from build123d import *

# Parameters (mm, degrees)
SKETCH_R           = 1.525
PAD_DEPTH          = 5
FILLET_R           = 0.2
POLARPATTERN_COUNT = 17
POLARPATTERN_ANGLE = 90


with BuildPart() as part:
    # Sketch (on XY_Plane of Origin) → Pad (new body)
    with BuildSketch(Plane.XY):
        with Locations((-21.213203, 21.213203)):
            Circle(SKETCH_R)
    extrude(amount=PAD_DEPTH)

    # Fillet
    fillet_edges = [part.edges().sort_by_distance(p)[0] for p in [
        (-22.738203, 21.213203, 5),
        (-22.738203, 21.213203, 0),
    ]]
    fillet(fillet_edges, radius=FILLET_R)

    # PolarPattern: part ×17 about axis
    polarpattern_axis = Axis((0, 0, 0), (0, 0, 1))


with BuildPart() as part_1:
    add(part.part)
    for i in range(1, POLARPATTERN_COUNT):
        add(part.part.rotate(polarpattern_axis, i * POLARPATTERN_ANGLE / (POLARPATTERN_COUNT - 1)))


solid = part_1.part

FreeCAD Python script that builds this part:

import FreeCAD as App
import Part
import Sketcher
Q = App.Units.Quantity


def edges_at(feature, points):
    """Names of the edges that pass closest to the given points."""
    edges = feature.Shape.Edges
    near = lambda p: min(range(len(edges)), key=lambda i: edges[i].distToShape(Part.Vertex(*p))[0])
    return sorted({f"Edge{near(p) + 1}" for p in points})

doc = App.newDocument("Part")
params = doc.addObject("Spreadsheet::Sheet", "Params")
for row, (alias, value) in enumerate([
    ("sketch1_diameter", "3.05 mm"),
    ("pad1_length", "5 mm"),
    ("fillet_radius", "0.2 mm"),
], start=1):
    params.set(f"A{row}", alias)
    params.set(f"B{row}", "=" + value)
    params.setAlias(f"B{row}", alias)

body = doc.addObject("PartDesign::Body", "Body")

sketch1 = doc.addObject("Sketcher::SketchObject", "Sketch")
body.addObject(sketch1)
sketch1.AttachmentSupport = (doc.XY_Plane, [""])
sketch1.MapMode = "FlatFace"
sketch1.addGeometry(Part.Circle(App.Vector(-21.2, 21.2, 0), App.Vector(0, 0, 1), 1.5), False)
sketch1.addConstraint([
    Sketcher.Constraint("Diameter", 0, Q("3.05 mm")),
    Sketcher.Constraint("DistanceX", 0, 3, -1, 1, Q("21.213203 mm")),
    Sketcher.Constraint("DistanceY", -1, 1, 0, 3, Q("21.213203 mm")),
])
sketch1.setExpression("Constraints[0]", "Params.sketch1_diameter")
pad1 = doc.addObject("PartDesign::Pad", "Pad")
body.addObject(pad1)
pad1.Profile = sketch1
pad1.setExpression("Length", "Params.pad1_length")
doc.recompute()

fillet = doc.addObject("PartDesign::Fillet", "Fillet")
body.addObject(fillet)
fillet.Base = (pad1, edges_at(pad1, [(-22.738, 21.213, 5), (-22.738, 21.213, 0)]))
fillet.setExpression("Radius", "Params.fillet_radius")
body2 = doc.addObject("PartDesign::Body", "Body001")
doc.recompute()

body2.BaseFeature = body
doc.recompute()

body3 = doc.addObject("PartDesign::Body", "Body002")
body3.BaseFeature = body
body3.Placement = App.Placement(App.Vector(0, 0, 0), App.Rotation(App.Vector(0, 0, 1), 5.625))
boolean = doc.addObject("PartDesign::Boolean", "Boolean")
body2.addObject(boolean)
boolean.Type = "Fuse"
boolean.addObjects([body3])
doc.recompute()

body4 = doc.addObject("PartDesign::Body", "Body003")
body4.BaseFeature = body
body4.Placement = App.Placement(App.Vector(0, 0, 0), App.Rotation(App.Vector(0, 0, 1), 11.25))
boolean2 = doc.addObject("PartDesign::Boolean", "Boolean001")
body2.addObject(boolean2)
boolean2.Type = "Fuse"
boolean2.addObjects([body4])
doc.recompute()

body5 = doc.addObject("PartDesign::Body", "Body004")
body5.BaseFeature = body
body5.Placement = App.Placement(App.Vector(0, 0, 0), App.Rotation(App.Vector(0, 0, 1), 16.875))
boolean3 = doc.addObject("PartDesign::Boolean", "Boolean002")
body2.addObject(boolean3)
boolean3.Type = "Fuse"
boolean3.addObjects([body5])
doc.recompute()

body6 = doc.addObject("PartDesign::Body", "Body005")
body6.BaseFeature = body
body6.Placement = App.Placement(App.Vector(0, 0, 0), App.Rotation(App.Vector(0, 0, 1), 22.5))
boolean4 = doc.addObject("PartDesign::Boolean", "Boolean003")
body2.addObject(boolean4)
boolean4.Type = "Fuse"
boolean4.addObjects([body6])
doc.recompute()

body7 = doc.addObject("PartDesign::Body", "Body006")
body7.BaseFeature = body
body7.Placement = App.Placement(App.Vector(0, 0, 0), App.Rotation(App.Vector(0, 0, 1), 28.125))
boolean5 = doc.addObject("PartDesign::Boolean", "Boolean004")
body2.addObject(boolean5)
boolean5.Type = "Fuse"
boolean5.addObjects([body7])
doc.recompute()

body8 = doc.addObject("PartDesign::Body", "Body007")
body8.BaseFeature = body
body8.Placement = App.Placement(App.Vector(0, 0, 0), App.Rotation(App.Vector(0, 0, 1), 33.75))
boolean6 = doc.addObject("PartDesign::Boolean", "Boolean005")
body2.addObject(boolean6)
boolean6.Type = "Fuse"
boolean6.addObjects([body8])
doc.recompute()

body9 = doc.addObject("PartDesign::Body", "Body008")
body9.BaseFeature = body
body9.Placement = App.Placement(App.Vector(0, 0, 0), App.Rotation(App.Vector(0, 0, 1), 39.375))
boolean7 = doc.addObject("PartDesign::Boolean", "Boolean006")
body2.addObject(boolean7)
boolean7.Type = "Fuse"
boolean7.addObjects([body9])
doc.recompute()

body10 = doc.addObject("PartDesign::Body", "Body009")
body10.BaseFeature = body
body10.Placement = App.Placement(App.Vector(0, 0, 0), App.Rotation(App.Vector(0, 0, 1), 45))
boolean8 = doc.addObject("PartDesign::Boolean", "Boolean007")
body2.addObject(boolean8)
boolean8.Type = "Fuse"
boolean8.addObjects([body10])
doc.recompute()

body11 = doc.addObject("PartDesign::Body", "Body010")
body11.BaseFeature = body
body11.Placement = App.Placement(App.Vector(0, 0, 0), App.Rotation(App.Vector(0, 0, 1), 50.625))
boolean9 = doc.addObject("PartDesign::Boolean", "Boolean008")
body2.addObject(boolean9)
boolean9.Type = "Fuse"
boolean9.addObjects([body11])
doc.recompute()

body12 = doc.addObject("PartDesign::Body", "Body011")
body12.BaseFeature = body
body12.Placement = App.Placement(App.Vector(0, 0, 0), App.Rotation(App.Vector(0, 0, 1), 56.25))
boolean10 = doc.addObject("PartDesign::Boolean", "Boolean009")
body2.addObject(boolean10)
boolean10.Type = "Fuse"
boolean10.addObjects([body12])
doc.recompute()

body13 = doc.addObject("PartDesign::Body", "Body012")
body13.BaseFeature = body
body13.Placement = App.Placement(App.Vector(0, 0, 0), App.Rotation(App.Vector(0, 0, 1), 61.875))
boolean11 = doc.addObject("PartDesign::Boolean", "Boolean010")
body2.addObject(boolean11)
boolean11.Type = "Fuse"
boolean11.addObjects([body13])
doc.recompute()

body14 = doc.addObject("PartDesign::Body", "Body013")
body14.BaseFeature = body
body14.Placement = App.Placement(App.Vector(0, 0, 0), App.Rotation(App.Vector(0, 0, 1), 67.5))
boolean12 = doc.addObject("PartDesign::Boolean", "Boolean011")
body2.addObject(boolean12)
boolean12.Type = "Fuse"
boolean12.addObjects([body14])
doc.recompute()

body15 = doc.addObject("PartDesign::Body", "Body014")
body15.BaseFeature = body
body15.Placement = App.Placement(App.Vector(0, 0, 0), App.Rotation(App.Vector(0, 0, 1), 73.125))
boolean13 = doc.addObject("PartDesign::Boolean", "Boolean012")
body2.addObject(boolean13)
boolean13.Type = "Fuse"
boolean13.addObjects([body15])
doc.recompute()

body16 = doc.addObject("PartDesign::Body", "Body015")
body16.BaseFeature = body
body16.Placement = App.Placement(App.Vector(0, 0, 0), App.Rotation(App.Vector(0, 0, 1), 78.75))
boolean14 = doc.addObject("PartDesign::Boolean", "Boolean013")
body2.addObject(boolean14)
boolean14.Type = "Fuse"
boolean14.addObjects([body16])
doc.recompute()

body17 = doc.addObject("PartDesign::Body", "Body016")
body17.BaseFeature = body
body17.Placement = App.Placement(App.Vector(0, 0, 0), App.Rotation(App.Vector(0, 0, 1), 84.375))
boolean15 = doc.addObject("PartDesign::Boolean", "Boolean014")
body2.addObject(boolean15)
boolean15.Type = "Fuse"
boolean15.addObjects([body17])
doc.recompute()

body.Placement = App.Placement(App.Vector(0, 0, 0), App.Rotation(App.Vector(0, 0, 1), 90))
boolean16 = doc.addObject("PartDesign::Boolean", "Boolean015")
body2.addObject(boolean16)
boolean16.Type = "Fuse"
boolean16.addObjects([body])

doc.recompute()
